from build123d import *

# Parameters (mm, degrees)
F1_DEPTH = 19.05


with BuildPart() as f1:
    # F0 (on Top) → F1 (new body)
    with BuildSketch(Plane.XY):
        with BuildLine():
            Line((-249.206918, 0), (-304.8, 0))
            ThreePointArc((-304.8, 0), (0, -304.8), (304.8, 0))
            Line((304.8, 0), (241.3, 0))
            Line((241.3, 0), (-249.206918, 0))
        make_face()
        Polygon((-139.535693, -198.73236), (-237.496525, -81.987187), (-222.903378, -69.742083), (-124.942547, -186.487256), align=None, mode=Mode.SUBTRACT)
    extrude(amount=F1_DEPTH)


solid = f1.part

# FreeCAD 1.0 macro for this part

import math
import FreeCAD as App
import Part
import Sketcher
Q = App.Units.Quantity

doc = App.newDocument("Part")
body = doc.addObject("PartDesign::Body", "Body")

# Sketch on XY plane
sketch1 = body.newObject("Sketcher::SketchObject", "Sketch")
sketch1.AttachmentSupport = (doc.getObject("XY_Plane"), [""])
sketch1.MapMode = "FlatFace"
sketch1.addGeometry([
    Part.ArcOfCircle(Part.Circle(App.Vector(0, 0, 0), App.Vector(0, 0, 1), 305), math.radians(180), math.radians(360)),  # 0
    Part.LineSegment(App.Vector(305, 0, 0), App.Vector(-305, 0, 0)),  # 1
    Part.LineSegment(App.Vector(-125, -186, 0), App.Vector(-140, -199, 0)),  # 2
    Part.LineSegment(App.Vector(-140, -199, 0), App.Vector(-237, -82, 0)),  # 3
    Part.LineSegment(App.Vector(-237, -82, 0), App.Vector(-223, -70, 0)),  # 4
    Part.LineSegment(App.Vector(-223, -70, 0), App.Vector(-125, -186, 0)),  # 5
], False)
sketch1.addConstraint([
    Sketcher.Constraint("Coincident", 0, 1, 1, 2),
    Sketcher.Constraint("Coincident", 1, 1, 0, 2),
    Sketcher.Constraint("Coincident", 2, 2, 3, 1),
    Sketcher.Constraint("Coincident", 3, 2, 4, 1),
    Sketcher.Constraint("Coincident", 4, 2, 5, 1),
    Sketcher.Constraint("Coincident", 5, 2, 2, 1),
    Sketcher.Constraint("Horizontal", 1),
    Sketcher.Constraint("Coincident", 0, 3, -1, 1),
    Sketcher.Constraint("PointOnObject", 0, 1, -1),
    Sketcher.Constraint("Perpendicular", 2, 3),
    Sketcher.Constraint("Perpendicular", 3, 4),
    Sketcher.Constraint("Perpendicular", 4, 5),
    Sketcher.Constraint("Radius", 0, Q("12 in")),
    Sketcher.Constraint("Distance", 3, Q("6 in")),
    Sketcher.Constraint("Angle", 2, Q("-139.999999 deg")),
    Sketcher.Constraint("Distance", 2, Q("0.75 in")),
    Sketcher.Constraint("DistanceY", 2, 2, -1, 1, 198.73236),
    Sketcher.Constraint("DistanceX", 4, 2, -1, 1, 222.903378),
])
pad1 = body.newObject("PartDesign::Pad", "Pad")
pad1.Profile = sketch1
pad1.Length = Q("0.75 in")

doc.recompute()
